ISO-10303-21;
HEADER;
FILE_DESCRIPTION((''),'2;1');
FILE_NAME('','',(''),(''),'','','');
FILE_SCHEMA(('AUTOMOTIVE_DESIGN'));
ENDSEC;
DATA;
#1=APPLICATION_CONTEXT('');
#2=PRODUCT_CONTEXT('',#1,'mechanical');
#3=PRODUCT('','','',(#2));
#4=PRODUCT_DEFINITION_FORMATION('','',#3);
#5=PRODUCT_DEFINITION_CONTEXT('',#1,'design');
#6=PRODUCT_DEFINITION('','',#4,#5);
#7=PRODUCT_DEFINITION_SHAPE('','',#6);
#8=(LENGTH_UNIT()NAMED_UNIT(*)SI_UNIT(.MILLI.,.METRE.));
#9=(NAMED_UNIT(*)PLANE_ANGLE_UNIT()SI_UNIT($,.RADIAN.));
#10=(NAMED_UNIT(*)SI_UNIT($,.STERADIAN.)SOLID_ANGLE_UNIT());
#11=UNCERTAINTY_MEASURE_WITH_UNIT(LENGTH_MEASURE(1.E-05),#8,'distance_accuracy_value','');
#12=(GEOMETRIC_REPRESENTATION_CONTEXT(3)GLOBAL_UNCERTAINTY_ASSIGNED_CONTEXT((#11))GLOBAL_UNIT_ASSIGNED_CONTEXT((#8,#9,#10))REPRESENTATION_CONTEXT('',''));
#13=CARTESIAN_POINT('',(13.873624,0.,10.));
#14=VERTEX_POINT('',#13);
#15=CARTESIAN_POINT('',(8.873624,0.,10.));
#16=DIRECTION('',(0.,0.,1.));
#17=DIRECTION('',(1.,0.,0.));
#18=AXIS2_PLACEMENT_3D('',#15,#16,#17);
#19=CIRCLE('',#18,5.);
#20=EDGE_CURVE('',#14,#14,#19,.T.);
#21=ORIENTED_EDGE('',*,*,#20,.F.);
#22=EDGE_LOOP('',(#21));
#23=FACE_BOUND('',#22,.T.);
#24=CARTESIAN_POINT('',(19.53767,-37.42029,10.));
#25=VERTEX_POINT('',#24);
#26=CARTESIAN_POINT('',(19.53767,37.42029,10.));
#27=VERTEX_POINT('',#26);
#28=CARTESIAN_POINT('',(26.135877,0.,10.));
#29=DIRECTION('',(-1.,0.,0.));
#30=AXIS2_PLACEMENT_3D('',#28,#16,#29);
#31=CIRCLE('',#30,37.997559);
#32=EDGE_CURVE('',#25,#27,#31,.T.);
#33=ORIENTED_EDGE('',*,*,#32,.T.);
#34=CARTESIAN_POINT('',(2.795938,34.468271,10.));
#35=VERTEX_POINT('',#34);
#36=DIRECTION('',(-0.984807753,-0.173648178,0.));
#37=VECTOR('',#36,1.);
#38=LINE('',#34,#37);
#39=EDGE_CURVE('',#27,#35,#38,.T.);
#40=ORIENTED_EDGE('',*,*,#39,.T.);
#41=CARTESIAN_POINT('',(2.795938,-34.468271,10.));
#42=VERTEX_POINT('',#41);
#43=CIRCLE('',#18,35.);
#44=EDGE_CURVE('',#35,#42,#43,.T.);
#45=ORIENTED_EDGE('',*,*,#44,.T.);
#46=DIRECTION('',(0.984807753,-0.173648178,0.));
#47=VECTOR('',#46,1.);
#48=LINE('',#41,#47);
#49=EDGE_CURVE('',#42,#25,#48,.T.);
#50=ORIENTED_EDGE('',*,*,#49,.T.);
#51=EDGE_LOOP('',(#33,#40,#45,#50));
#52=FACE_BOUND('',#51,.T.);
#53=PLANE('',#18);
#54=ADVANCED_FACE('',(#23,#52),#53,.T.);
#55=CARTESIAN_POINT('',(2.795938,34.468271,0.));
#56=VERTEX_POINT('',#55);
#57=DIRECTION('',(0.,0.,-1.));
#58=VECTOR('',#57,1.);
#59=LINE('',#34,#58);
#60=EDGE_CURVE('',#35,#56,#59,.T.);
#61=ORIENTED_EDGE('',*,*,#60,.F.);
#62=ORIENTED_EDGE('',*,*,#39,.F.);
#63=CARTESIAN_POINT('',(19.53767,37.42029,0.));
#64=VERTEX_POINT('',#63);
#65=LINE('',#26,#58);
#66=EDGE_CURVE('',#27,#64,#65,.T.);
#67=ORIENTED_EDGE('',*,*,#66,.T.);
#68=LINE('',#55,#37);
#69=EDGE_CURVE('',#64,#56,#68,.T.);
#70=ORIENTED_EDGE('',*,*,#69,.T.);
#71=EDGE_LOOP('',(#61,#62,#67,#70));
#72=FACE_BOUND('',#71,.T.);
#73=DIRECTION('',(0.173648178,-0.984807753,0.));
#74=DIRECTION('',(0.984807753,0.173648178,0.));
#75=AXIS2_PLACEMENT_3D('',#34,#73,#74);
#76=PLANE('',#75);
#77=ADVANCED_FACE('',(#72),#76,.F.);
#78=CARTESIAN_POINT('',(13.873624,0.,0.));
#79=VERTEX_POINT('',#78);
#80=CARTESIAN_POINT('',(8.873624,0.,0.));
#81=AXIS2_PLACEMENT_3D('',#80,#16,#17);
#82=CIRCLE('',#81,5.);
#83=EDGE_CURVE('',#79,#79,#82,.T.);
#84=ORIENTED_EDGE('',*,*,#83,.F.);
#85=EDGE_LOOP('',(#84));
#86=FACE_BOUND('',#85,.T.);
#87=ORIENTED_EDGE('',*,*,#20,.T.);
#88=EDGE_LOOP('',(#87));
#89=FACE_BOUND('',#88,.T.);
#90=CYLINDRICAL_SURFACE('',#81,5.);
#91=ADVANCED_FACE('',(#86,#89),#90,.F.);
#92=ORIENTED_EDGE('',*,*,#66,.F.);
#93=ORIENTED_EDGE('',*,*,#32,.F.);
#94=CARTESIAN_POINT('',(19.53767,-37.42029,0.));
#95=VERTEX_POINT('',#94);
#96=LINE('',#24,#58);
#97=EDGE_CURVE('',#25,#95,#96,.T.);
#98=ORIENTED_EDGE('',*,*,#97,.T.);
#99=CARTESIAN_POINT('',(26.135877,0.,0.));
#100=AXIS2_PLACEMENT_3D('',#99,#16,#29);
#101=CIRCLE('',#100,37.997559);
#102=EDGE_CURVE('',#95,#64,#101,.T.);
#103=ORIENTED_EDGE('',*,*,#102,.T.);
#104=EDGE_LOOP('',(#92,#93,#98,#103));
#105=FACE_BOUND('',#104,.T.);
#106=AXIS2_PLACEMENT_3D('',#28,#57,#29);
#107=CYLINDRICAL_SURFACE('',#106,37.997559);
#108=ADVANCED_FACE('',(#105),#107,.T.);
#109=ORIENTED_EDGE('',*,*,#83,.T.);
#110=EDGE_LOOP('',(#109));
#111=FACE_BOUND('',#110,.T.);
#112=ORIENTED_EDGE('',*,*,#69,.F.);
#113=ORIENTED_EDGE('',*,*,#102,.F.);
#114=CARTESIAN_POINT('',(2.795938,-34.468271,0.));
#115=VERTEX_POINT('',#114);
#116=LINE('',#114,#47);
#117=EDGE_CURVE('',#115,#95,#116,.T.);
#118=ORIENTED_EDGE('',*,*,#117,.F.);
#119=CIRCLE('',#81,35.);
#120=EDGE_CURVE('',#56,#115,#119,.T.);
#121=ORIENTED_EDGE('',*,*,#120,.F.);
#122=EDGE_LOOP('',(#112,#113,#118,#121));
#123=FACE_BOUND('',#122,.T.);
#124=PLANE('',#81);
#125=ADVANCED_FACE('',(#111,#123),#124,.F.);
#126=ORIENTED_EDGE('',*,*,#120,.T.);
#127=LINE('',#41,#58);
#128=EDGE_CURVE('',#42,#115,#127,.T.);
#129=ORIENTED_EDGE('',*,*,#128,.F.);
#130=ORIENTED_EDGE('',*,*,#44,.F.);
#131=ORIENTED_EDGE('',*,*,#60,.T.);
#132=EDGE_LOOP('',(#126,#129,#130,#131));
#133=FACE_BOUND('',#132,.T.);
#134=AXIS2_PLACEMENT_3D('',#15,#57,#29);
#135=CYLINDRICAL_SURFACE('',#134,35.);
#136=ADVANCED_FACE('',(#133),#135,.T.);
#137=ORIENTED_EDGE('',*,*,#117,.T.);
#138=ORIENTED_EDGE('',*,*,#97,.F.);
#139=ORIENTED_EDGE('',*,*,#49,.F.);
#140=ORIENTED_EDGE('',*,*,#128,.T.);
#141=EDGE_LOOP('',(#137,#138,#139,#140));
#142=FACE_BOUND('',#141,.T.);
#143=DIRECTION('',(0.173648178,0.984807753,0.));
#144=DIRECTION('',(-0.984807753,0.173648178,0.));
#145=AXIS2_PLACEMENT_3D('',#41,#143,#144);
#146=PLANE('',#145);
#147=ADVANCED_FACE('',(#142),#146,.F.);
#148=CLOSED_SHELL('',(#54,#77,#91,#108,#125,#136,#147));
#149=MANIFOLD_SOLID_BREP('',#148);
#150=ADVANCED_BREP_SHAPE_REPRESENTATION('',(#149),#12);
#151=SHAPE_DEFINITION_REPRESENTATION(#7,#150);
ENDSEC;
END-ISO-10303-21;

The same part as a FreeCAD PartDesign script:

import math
import FreeCAD as App
import Part
import Sketcher

V = App.Vector
Q = App.Units.Quantity

doc = App.newDocument("Part")
params = doc.addObject("Spreadsheet::Sheet", "Params")
for row, (alias, value) in enumerate([
    ("sketch1_radius", "35 mm"),
    ("sketch1_length", "17 mm"),
    ("pad1_length", "10 mm"),
    ("sketch2_diameter", "10 mm"),
    ("pocket1_length", "10 mm"),
], start=1):
    params.set(f"A{row}", alias)
    params.set(f"B{row}", "=" + value)
    params.setAlias(f"B{row}", alias)

body = doc.addObject("PartDesign::Body", "Body")

# Sketch on XY plane
sketch1 = doc.addObject("Sketcher::SketchObject", "Sketch")
body.addObject(sketch1)
sketch1.AttachmentSupport = (doc.XY_Plane, [""])
sketch1.MapMode = "FlatFace"
sketch1.addGeometry(Part.LineSegment(V(19.53767, 37.42029, 0), V(2.795938, 34.468271, 0)), False)
sketch1.addGeometry(Part.ArcOfCircle(Part.Circle(V(8.873624, 0, 0), V(0, 0, 1), 35), math.radians(100), math.radians(260)), False)
sketch1.addGeometry(Part.LineSegment(V(2.795938, -34.468271, 0), V(19.53767, -37.42029, 0)), False)
sketch1.addGeometry(Part.ArcOfCircle(Part.Circle(V(26.135877, 0, 0), V(0, 0, 1), 37.997559), math.radians(-100), math.radians(100)), False)
sketch1.addConstraint(Sketcher.Constraint("Tangent", 0, 2, 1, 1))
sketch1.addConstraint(Sketcher.Constraint("Tangent", 1, 2, 2, 1))
sketch1.addConstraint(Sketcher.Constraint("Tangent", 2, 2, 3, 1))
sketch1.addConstraint(Sketcher.Constraint("Tangent", 3, 2, 0, 1))
sketch1.addConstraint(Sketcher.Constraint("Symmetric", 0, 2, 1, 2, -1))
sketch1.addConstraint(Sketcher.Constraint("Radius", 1, Q("35 mm")))
sketch1.addConstraint(Sketcher.Constraint("Angle", 0, Q("-170 deg")))
sketch1.addConstraint(Sketcher.Constraint("Distance", 0, Q("17 mm")))
sketch1.addConstraint(Sketcher.Constraint("DistanceX", -1, 1, 2, 2, Q("19.53767 mm")))
sketch1.setExpression("Constraints[5]", "Params.sketch1_radius")
sketch1.setExpression("Constraints[7]", "Params.sketch1_length")
pad1 = doc.addObject("PartDesign::Pad", "Pad")
body.addObject(pad1)
pad1.Profile = sketch1
pad1.setExpression("Length", "Params.pad1_length")

# Sketch on XY plane
sketch2 = doc.addObject("Sketcher::SketchObject", "Sketch001")
body.addObject(sketch2)
sketch2.AttachmentSupport = (doc.XY_Plane, [""])
sketch2.MapMode = "FlatFace"
sketch2.AttachmentOffset = App.Placement(V(0, 0, 10), App.Rotation())
sketch2.addGeometry(Part.Circle(V(8.873624, 0, 0), V(0, 0, 1), 5), False)
sketch2.addConstraint(Sketcher.Constraint("PointOnObject", 0, 3, -1))
sketch2.addConstraint(Sketcher.Constraint("Diameter", 0, Q("10 mm")))
sketch2.addConstraint(Sketcher.Constraint("DistanceX", -1, 1, 0, 3, Q("8.873624 mm")))
sketch2.setExpression("Constraints[1]", "Params.sketch2_diameter")
pocket1 = doc.addObject("PartDesign::Pocket", "Pocket")
body.addObject(pocket1)
pocket1.Profile = sketch2
pocket1.setExpression("Length", "Params.pocket1_length")

doc.recompute()
